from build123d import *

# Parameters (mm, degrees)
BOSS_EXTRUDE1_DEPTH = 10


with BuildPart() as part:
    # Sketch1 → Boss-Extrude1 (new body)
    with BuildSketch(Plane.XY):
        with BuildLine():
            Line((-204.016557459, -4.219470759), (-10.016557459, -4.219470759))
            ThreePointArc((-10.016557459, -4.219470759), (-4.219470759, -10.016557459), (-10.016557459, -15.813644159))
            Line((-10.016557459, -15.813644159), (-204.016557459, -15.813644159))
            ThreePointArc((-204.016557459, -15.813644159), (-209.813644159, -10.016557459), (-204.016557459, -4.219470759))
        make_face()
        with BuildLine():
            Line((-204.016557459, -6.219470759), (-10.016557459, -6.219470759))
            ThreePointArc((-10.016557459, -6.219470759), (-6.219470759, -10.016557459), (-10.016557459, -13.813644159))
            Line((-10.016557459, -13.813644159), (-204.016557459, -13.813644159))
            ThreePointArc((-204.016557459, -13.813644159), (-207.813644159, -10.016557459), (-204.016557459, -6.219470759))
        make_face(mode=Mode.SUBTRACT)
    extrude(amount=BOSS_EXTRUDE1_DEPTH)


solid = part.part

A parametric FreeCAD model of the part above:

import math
import FreeCAD as App
import Part
import Sketcher

doc = App.newDocument("Part")
params = doc.addObject("Spreadsheet::Sheet", "Params")
for row, (alias, value) in enumerate([
    ("sketch1_width", "194 mm"),
    ("pad1_length", "10 mm"),
], start=1):
    params.set(f"A{row}", alias)
    params.set(f"B{row}", "=" + value)
    params.setAlias(f"B{row}", alias)

body = doc.addObject("PartDesign::Body", "Body")

# Sketch on XY plane
sketch1 = body.newObject("Sketcher::SketchObject", "Sketch")
sketch1.AttachmentSupport = (doc.getObject("XY_Plane"), [""])
sketch1.MapMode = "FlatFace"
sketch1.addGeometry(Part.LineSegment(App.Vector(-10, -4.2, 0), App.Vector(-204, -4.2, 0)), False)
sketch1.addGeometry(Part.ArcOfCircle(Part.Circle(App.Vector(-204, -10, 0), App.Vector(0, 0, 1), 5.8), math.radians(90), math.radians(270)), False)
sketch1.addGeometry(Part.LineSegment(App.Vector(-204, -15.8, 0), App.Vector(-10, -15.8, 0)), False)
sketch1.addGeometry(Part.ArcOfCircle(Part.Circle(App.Vector(-10, -10, 0), App.Vector(0, 0, 1), 5.8), math.radians(-90), math.radians(90)), False)
sketch1.addGeometry(Part.LineSegment(App.Vector(-204, -6.2, 0), App.Vector(-10, -6.2, 0)), False)
sketch1.addGeometry(Part.ArcOfCircle(Part.Circle(App.Vector(-10, -10, 0), App.Vector(0, 0, 1), 3.8), math.radians(-90), math.radians(90)), False)
sketch1.addGeometry(Part.LineSegment(App.Vector(-10, -13.8, 0), App.Vector(-204, -13.8, 0)), False)
sketch1.addGeometry(Part.ArcOfCircle(Part.Circle(App.Vector(-204, -10, 0), App.Vector(0, 0, 1), 3.8), math.radians(90), math.radians(270)), False)
sketch1.addConstraint(Sketcher.Constraint("Tangent", 0, 2, 1, 1))
sketch1.addConstraint(Sketcher.Constraint("Tangent", 1, 2, 2, 1))
sketch1.addConstraint(Sketcher.Constraint("Tangent", 2, 2, 3, 1))
sketch1.addConstraint(Sketcher.Constraint("Tangent", 3, 2, 0, 1))
sketch1.addConstraint(Sketcher.Constraint("Tangent", 4, 2, 5, 2))
sketch1.addConstraint(Sketcher.Constraint("Tangent", 5, 1, 6, 1))
sketch1.addConstraint(Sketcher.Constraint("Tangent", 6, 2, 7, 2))
sketch1.addConstraint(Sketcher.Constraint("Tangent", 7, 1, 4, 1))
sketch1.addConstraint(Sketcher.Constraint("Horizontal", 0))
sketch1.addConstraint(Sketcher.Constraint("Horizontal", 2))
sketch1.addConstraint(Sketcher.Constraint("Horizontal", 4))
sketch1.addConstraint(Sketcher.Constraint("Horizontal", 6))
sketch1.addConstraint(Sketcher.Constraint("Coincident", 5, 3, 3, 3))
sketch1.addConstraint(Sketcher.Constraint("Vertical", 7, 3, 0, 2))
sketch1.addConstraint(Sketcher.Constraint("DistanceX", 0, 2, 0, 1, 194.0))
sketch1.addConstraint(Sketcher.Constraint("DistanceY", 4, 2, 3, 2, 2.0))
sketch1.addConstraint(Sketcher.Constraint("Radius", 1, 5.797087))
sketch1.addConstraint(Sketcher.Constraint("DistanceY", 0, 2, -1, 1, 4.219471))
sketch1.addConstraint(Sketcher.Constraint("DistanceX", 1, 3, -1, 1, 204.016557))
sketch1.setExpression("Constraints[14]", "Params.sketch1_width")
pad1 = body.newObject("PartDesign::Pad", "Pad")
pad1.Profile = sketch1
pad1.setExpression("Length", "Params.pad1_length")

doc.recompute()
